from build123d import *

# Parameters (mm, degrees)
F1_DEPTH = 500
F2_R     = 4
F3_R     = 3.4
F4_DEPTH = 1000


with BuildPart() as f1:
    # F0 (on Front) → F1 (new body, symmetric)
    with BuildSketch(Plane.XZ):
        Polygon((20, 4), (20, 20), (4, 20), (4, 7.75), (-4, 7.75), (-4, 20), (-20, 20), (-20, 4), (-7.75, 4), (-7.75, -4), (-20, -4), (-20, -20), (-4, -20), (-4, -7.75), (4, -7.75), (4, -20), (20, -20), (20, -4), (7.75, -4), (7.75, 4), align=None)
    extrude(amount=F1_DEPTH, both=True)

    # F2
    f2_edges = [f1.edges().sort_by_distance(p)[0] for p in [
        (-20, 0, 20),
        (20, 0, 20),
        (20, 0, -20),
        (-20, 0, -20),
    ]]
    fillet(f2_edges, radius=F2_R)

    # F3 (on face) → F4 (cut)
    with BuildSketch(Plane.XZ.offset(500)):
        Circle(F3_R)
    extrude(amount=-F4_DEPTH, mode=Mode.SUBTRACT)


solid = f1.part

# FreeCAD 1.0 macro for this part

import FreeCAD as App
import Part
import Sketcher
Q = App.Units.Quantity


def edges_at(feature, points):
    """Names of the edges that pass closest to the given points."""
    edges = feature.Shape.Edges
    near = lambda p: min(range(len(edges)), key=lambda i: edges[i].distToShape(Part.Vertex(*p))[0])
    return sorted({f"Edge{near(p) + 1}" for p in points})

doc = App.newDocument("Part")
body = doc.addObject("PartDesign::Body", "Body")

# Sketch on XZ plane
sketch1 = body.newObject("Sketcher::SketchObject", "Sketch")
sketch1.AttachmentSupport = (doc.getObject("XZ_Plane"), [""])
sketch1.MapMode = "FlatFace"
sketch1.addGeometry(Part.LineSegment(App.Vector(20, 4, 0), App.Vector(20, 20, 0)), False)
sketch1.addGeometry(Part.LineSegment(App.Vector(20, 20, 0), App.Vector(4, 20, 0)), False)
sketch1.addGeometry(Part.LineSegment(App.Vector(4, 20, 0), App.Vector(4, 8, 0)), False)
sketch1.addGeometry(Part.LineSegment(App.Vector(4, 8, 0), App.Vector(-4, 8, 0)), False)
sketch1.addGeometry(Part.LineSegment(App.Vector(-4, 8, 0), App.Vector(-4, 20, 0)), False)
sketch1.addGeometry(Part.LineSegment(App.Vector(-4, 20, 0), App.Vector(-20, 20, 0)), False)
sketch1.addGeometry(Part.LineSegment(App.Vector(-20, 20, 0), App.Vector(-20, 4, 0)), False)
sketch1.addGeometry(Part.LineSegment(App.Vector(-20, 4, 0), App.Vector(-8, 4, 0)), False)
sketch1.addGeometry(Part.LineSegment(App.Vector(-8, 4, 0), App.Vector(-8, -4, 0)), False)
sketch1.addGeometry(Part.LineSegment(App.Vector(-8, -4, 0), App.Vector(-20, -4, 0)), False)
sketch1.addGeometry(Part.LineSegment(App.Vector(-20, -4, 0), App.Vector(-20, -20, 0)), False)
sketch1.addGeometry(Part.LineSegment(App.Vector(-20, -20, 0), App.Vector(-4, -20, 0)), False)
sketch1.addGeometry(Part.LineSegment(App.Vector(-4, -20, 0), App.Vector(-4, -8, 0)), False)
sketch1.addGeometry(Part.LineSegment(App.Vector(-4, -8, 0), App.Vector(4, -8, 0)), False)
sketch1.addGeometry(Part.LineSegment(App.Vector(4, -8, 0), App.Vector(4, -20, 0)), False)
sketch1.addGeometry(Part.LineSegment(App.Vector(4, -20, 0), App.Vector(20, -20, 0)), False)
sketch1.addGeometry(Part.LineSegment(App.Vector(20, -20, 0), App.Vector(20, -4, 0)), False)
sketch1.addGeometry(Part.LineSegment(App.Vector(20, -4, 0), App.Vector(8, -4, 0)), False)
sketch1.addGeometry(Part.LineSegment(App.Vector(8, -4, 0), App.Vector(8, 4, 0)), False)
sketch1.addGeometry(Part.LineSegment(App.Vector(8, 4, 0), App.Vector(20, 4, 0)), False)
sketch1.addConstraint(Sketcher.Constraint("Coincident", 0, 2, 1, 1))
sketch1.addConstraint(Sketcher.Constraint("Coincident", 1, 2, 2, 1))
sketch1.addConstraint(Sketcher.Constraint("Coincident", 2, 2, 3, 1))
sketch1.addConstraint(Sketcher.Constraint("Coincident", 3, 2, 4, 1))
sketch1.addConstraint(Sketcher.Constraint("Coincident", 4, 2, 5, 1))
sketch1.addConstraint(Sketcher.Constraint("Coincident", 5, 2, 6, 1))
sketch1.addConstraint(Sketcher.Constraint("Coincident", 6, 2, 7, 1))
sketch1.addConstraint(Sketcher.Constraint("Coincident", 7, 2, 8, 1))
sketch1.addConstraint(Sketcher.Constraint("Coincident", 8, 2, 9, 1))
sketch1.addConstraint(Sketcher.Constraint("Coincident", 9, 2, 10, 1))
sketch1.addConstraint(Sketcher.Constraint("Coincident", 10, 2, 11, 1))
sketch1.addConstraint(Sketcher.Constraint("Coincident", 11, 2, 12, 1))
sketch1.addConstraint(Sketcher.Constraint("Coincident", 12, 2, 13, 1))
sketch1.addConstraint(Sketcher.Constraint("Coincident", 13, 2, 14, 1))
sketch1.addConstraint(Sketcher.Constraint("Coincident", 14, 2, 15, 1))
sketch1.addConstraint(Sketcher.Constraint("Coincident", 15, 2, 16, 1))
sketch1.addConstraint(Sketcher.Constraint("Coincident", 16, 2, 17, 1))
sketch1.addConstraint(Sketcher.Constraint("Coincident", 17, 2, 18, 1))
sketch1.addConstraint(Sketcher.Constraint("Coincident", 18, 2, 19, 1))
sketch1.addConstraint(Sketcher.Constraint("Coincident", 19, 2, 0, 1))
sketch1.addConstraint(Sketcher.Constraint("Vertical", 0))
sketch1.addConstraint(Sketcher.Constraint("Horizontal", 1))
sketch1.addConstraint(Sketcher.Constraint("Vertical", 2))
sketch1.addConstraint(Sketcher.Constraint("Horizontal", 3))
sketch1.addConstraint(Sketcher.Constraint("Vertical", 4))
sketch1.addConstraint(Sketcher.Constraint("Horizontal", 5))
sketch1.addConstraint(Sketcher.Constraint("Vertical", 6))
sketch1.addConstraint(Sketcher.Constraint("Horizontal", 7))
sketch1.addConstraint(Sketcher.Constraint("Vertical", 8))
sketch1.addConstraint(Sketcher.Constraint("Horizontal", 9))
sketch1.addConstraint(Sketcher.Constraint("Vertical", 10))
sketch1.addConstraint(Sketcher.Constraint("Horizontal", 11))
sketch1.addConstraint(Sketcher.Constraint("Vertical", 12))
sketch1.addConstraint(Sketcher.Constraint("Horizontal", 13))
sketch1.addConstraint(Sketcher.Constraint("Vertical", 14))
sketch1.addConstraint(Sketcher.Constraint("Horizontal", 15))
sketch1.addConstraint(Sketcher.Constraint("Vertical", 16))
sketch1.addConstraint(Sketcher.Constraint("Horizontal", 17))
sketch1.addConstraint(Sketcher.Constraint("Vertical", 18))
sketch1.addConstraint(Sketcher.Constraint("Horizontal", 19))
sketch1.addConstraint(Sketcher.Constraint("Symmetric", 0, 2, 10, 2, -1, 1))
sketch1.addConstraint(Sketcher.Constraint("Symmetric", 2, 2, 12, 2, -1, 1))
sketch1.addConstraint(Sketcher.Constraint("Symmetric", 4, 2, 14, 2, -1, 1))
sketch1.addConstraint(Sketcher.Constraint("Symmetric", 6, 2, 16, 2, -1, 1))
sketch1.addConstraint(Sketcher.Constraint("Symmetric", 8, 2, 18, 2, -1, 1))
sketch1.addConstraint(Sketcher.Constraint("Symmetric", 1, 2, 4, 2, -2))
sketch1.addConstraint(Sketcher.Constraint("Symmetric", 9, 2, 16, 2, -2))
sketch1.addConstraint(Sketcher.Constraint("Equal", 15, 0))
sketch1.addConstraint(Sketcher.Constraint("Equal", 19, 2))
sketch1.addConstraint(Sketcher.Constraint("Equal", 13, 8))
sketch1.addConstraint(Sketcher.Constraint("DistanceX", 1, 2, 1, 1, Q("16 mm")))
sketch1.addConstraint(Sketcher.Constraint("DistanceX", 3, 2, 3, 1, Q("8 mm")))
sketch1.addConstraint(Sketcher.Constraint("DistanceX", 7, 1, 7, 2, Q("12.25 mm")))
pad1 = body.newObject("PartDesign::Pad", "Pad")
pad1.Profile = sketch1
pad1.Length = 1000
pad1.Midplane = True
doc.recompute()

fillet = body.newObject("PartDesign::Fillet", "Fillet")
fillet.Base = (pad1, edges_at(pad1, [
    (-20, 0, 20),
    (20, 0, 20),
    (20, 0, -20),
    (-20, 0, -20),
]))
fillet.Radius = 4

# Sketch on XZ plane
sketch2 = body.newObject("Sketcher::SketchObject", "Sketch001")
sketch2.AttachmentSupport = (doc.getObject("XZ_Plane"), [""])
sketch2.MapMode = "FlatFace"
sketch2.AttachmentOffset = App.Placement(App.Vector(0, 0, 500), App.Rotation())
sketch2.addGeometry(Part.Circle(App.Vector(0, 0, 0), App.Vector(0, 0, 1), 3.4), False)
sketch2.addConstraint(Sketcher.Constraint("Coincident", 0, 3, -1, 1))
sketch2.addConstraint(Sketcher.Constraint("Diameter", 0, Q("6.8 mm")))
pocket1 = body.newObject("PartDesign::Pocket", "Pocket")
pocket1.Profile = sketch2
pocket1.Length = 1000

doc.recompute()
